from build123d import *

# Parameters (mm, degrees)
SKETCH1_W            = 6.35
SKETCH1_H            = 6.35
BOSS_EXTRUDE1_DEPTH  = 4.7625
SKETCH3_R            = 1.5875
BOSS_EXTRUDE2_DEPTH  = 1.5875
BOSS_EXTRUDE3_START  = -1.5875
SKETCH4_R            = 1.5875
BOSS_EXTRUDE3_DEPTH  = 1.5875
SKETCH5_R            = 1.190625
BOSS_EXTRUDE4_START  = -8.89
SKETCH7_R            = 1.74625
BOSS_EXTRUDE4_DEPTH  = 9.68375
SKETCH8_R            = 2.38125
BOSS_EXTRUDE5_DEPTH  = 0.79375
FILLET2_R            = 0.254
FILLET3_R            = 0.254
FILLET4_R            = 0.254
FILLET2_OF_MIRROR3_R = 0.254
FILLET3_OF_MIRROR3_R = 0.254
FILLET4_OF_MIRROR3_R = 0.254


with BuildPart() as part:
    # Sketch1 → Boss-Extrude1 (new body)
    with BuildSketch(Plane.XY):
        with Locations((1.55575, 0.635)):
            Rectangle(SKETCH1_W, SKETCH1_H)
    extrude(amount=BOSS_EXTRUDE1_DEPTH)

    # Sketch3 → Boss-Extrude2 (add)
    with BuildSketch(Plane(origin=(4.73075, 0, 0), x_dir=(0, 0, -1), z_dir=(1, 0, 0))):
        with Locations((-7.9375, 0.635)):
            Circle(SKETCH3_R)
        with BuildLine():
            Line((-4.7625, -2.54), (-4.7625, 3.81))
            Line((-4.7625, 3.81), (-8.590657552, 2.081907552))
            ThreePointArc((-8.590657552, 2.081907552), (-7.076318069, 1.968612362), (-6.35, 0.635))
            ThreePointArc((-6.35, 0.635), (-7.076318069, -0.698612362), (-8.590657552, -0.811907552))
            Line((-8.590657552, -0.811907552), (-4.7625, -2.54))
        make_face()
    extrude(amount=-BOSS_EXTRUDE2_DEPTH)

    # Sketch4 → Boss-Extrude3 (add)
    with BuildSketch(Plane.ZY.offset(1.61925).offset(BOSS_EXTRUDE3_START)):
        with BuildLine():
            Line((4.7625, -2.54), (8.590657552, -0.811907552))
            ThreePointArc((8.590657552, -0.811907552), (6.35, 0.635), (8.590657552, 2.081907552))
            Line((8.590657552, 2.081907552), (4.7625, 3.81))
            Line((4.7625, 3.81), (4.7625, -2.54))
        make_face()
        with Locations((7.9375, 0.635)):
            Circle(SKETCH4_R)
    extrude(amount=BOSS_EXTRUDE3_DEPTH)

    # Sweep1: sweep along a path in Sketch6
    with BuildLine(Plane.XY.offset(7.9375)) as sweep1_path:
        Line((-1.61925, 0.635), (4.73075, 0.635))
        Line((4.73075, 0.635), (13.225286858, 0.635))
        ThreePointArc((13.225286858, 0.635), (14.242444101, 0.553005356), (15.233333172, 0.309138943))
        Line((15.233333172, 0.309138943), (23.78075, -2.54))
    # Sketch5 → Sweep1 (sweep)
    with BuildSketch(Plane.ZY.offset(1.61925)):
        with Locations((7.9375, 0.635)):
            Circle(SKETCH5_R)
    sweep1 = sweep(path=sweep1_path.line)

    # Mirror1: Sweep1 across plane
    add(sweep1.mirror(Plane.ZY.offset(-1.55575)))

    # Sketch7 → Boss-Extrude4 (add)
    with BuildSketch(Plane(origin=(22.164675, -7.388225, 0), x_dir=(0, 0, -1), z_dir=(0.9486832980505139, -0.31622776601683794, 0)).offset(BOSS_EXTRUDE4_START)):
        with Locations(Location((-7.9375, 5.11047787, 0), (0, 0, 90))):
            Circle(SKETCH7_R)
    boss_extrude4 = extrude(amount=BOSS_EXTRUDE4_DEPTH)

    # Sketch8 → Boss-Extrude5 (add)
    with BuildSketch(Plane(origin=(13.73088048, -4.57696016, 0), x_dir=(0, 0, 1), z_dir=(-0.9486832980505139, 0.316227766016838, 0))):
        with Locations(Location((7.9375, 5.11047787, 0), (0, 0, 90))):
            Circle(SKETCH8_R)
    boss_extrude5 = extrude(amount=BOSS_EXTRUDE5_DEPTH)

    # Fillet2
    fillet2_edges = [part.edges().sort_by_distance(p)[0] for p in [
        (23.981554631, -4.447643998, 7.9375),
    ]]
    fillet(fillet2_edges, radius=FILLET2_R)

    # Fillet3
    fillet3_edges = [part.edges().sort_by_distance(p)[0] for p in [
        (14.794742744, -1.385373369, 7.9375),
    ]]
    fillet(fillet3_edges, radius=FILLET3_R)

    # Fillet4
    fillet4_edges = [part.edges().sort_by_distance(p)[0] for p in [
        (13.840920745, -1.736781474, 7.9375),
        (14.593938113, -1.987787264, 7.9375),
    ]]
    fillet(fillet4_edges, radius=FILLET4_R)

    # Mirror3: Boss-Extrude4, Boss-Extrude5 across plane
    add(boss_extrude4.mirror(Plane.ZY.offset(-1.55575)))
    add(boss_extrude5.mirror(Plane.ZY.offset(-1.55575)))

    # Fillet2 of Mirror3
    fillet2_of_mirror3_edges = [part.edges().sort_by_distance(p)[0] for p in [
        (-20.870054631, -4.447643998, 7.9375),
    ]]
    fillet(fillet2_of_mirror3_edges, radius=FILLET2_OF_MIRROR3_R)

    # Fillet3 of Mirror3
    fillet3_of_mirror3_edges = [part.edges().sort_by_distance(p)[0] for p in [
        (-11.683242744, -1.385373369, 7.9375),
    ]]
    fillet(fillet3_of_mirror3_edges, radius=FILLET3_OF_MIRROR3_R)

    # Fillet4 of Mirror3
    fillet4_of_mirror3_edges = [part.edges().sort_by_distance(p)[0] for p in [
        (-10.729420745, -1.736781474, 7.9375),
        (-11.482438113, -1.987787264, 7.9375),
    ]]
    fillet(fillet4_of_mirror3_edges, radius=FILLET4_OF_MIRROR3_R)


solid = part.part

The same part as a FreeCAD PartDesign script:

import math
import FreeCAD as App
import Part
import Sketcher
Q = App.Units.Quantity


def edges_at(feature, points):
    """Names of the edges that pass closest to the given points."""
    edges = feature.Shape.Edges
    near = lambda p: min(range(len(edges)), key=lambda i: edges[i].distToShape(Part.Vertex(*p))[0])
    return sorted({f"Edge{near(p) + 1}" for p in points})

doc = App.newDocument("Part")
params = doc.addObject("Spreadsheet::Sheet", "Params")
for row, (alias, value) in enumerate([
    ("sketch1_width", "0.25 in"),
    ("pad1_length", "0.1875 in"),
    ("sketch2_radius", "0.0625 in"),
    ("sketch2_width", "0.25 in"),
    ("pad2_length", "0.0625 in"),
    ("sketch3_radius", "0.0625 in"),
    ("sketch3_width", "0.25 in"),
    ("pad3_length", "0.0625 in"),
    ("sketch4_diameter", "0.09375 in"),
    ("sketch5_radius", "0.25 in"),
    ("pad4_length", "9.68375 mm"),
    ("sketch7_diameter", "0.1875 in"),
    ("pad5_length", "0.03125 in"),
    ("fillet_radius", "0.01 in"),
    ("fillet2_radius", "0.01 in"),
    ("fillet3_radius", "0.01 in"),
    ("fillet4_radius", "0.01 in"),
    ("fillet5_radius", "0.01 in"),
    ("fillet6_radius", "0.01 in"),
], start=1):
    params.set(f"A{row}", alias)
    params.set(f"B{row}", "=" + value)
    params.setAlias(f"B{row}", alias)

body = doc.addObject("PartDesign::Body", "Body")

# Sketch on XY plane
sketch1 = doc.addObject("Sketcher::SketchObject", "Sketch")
body.addObject(sketch1)
sketch1.AttachmentSupport = (doc.XY_Plane, [""])
sketch1.MapMode = "FlatFace"
sketch1.addGeometry([
    Part.LineSegment(App.Vector(-1.61925, 3.81, 0), App.Vector(-1.61925, -2.54, 0)),
    Part.LineSegment(App.Vector(-1.61925, -2.54, 0), App.Vector(4.73075, -2.54, 0)),
    Part.LineSegment(App.Vector(4.73075, -2.54, 0), App.Vector(4.73075, 3.81, 0)),
    Part.LineSegment(App.Vector(4.73075, 3.81, 0), App.Vector(-1.61925, 3.81, 0)),
], False)
sketch1.addConstraint([
    Sketcher.Constraint("Coincident", 0, 2, 1, 1),
    Sketcher.Constraint("Coincident", 1, 2, 2, 1),
    Sketcher.Constraint("Coincident", 2, 2, 3, 1),
    Sketcher.Constraint("Coincident", 3, 2, 0, 1),
    Sketcher.Constraint("Vertical", 0),
    Sketcher.Constraint("Horizontal", 1),
    Sketcher.Constraint("Vertical", 2),
    Sketcher.Constraint("Horizontal", 3),
    Sketcher.Constraint("Equal", 3, 0),
    Sketcher.Constraint("DistanceX", 1, 1, 1, 2, Q("0.25 in")),
    Sketcher.Constraint("DistanceY", 0, 2, -1, 1, Q("0.1 in")),
    Sketcher.Constraint("DistanceX", 0, 2, -1, 1, Q("1.61925 mm")),
])
sketch1.setExpression("Constraints[9]", "Params.sketch1_width")
pad1 = doc.addObject("PartDesign::Pad", "Pad")
body.addObject(pad1)
pad1.Profile = sketch1
pad1.setExpression("Length", "Params.pad1_length")

# Sketch on YZ plane
sketch2 = doc.addObject("Sketcher::SketchObject", "Sketch001")
body.addObject(sketch2)
sketch2.AttachmentSupport = (doc.YZ_Plane, [""])
sketch2.MapMode = "FlatFace"
sketch2.AttachmentOffset = App.Placement(App.Vector(0, 0, 4.73075), App.Rotation())
sketch2.addGeometry([
    Part.ArcOfCircle(Part.Circle(App.Vector(0.635, 7.9375, 0), App.Vector(0, 0, 1), 1.5875), math.radians(24.295189), math.radians(155.704811)),
    Part.LineSegment(App.Vector(-0.811908, 8.590658, 0), App.Vector(-2.54, 4.7625, 0)),
    Part.LineSegment(App.Vector(-2.54, 4.7625, 0), App.Vector(3.81, 4.7625, 0)),
    Part.LineSegment(App.Vector(3.81, 4.7625, 0), App.Vector(2.081908, 8.590658, 0)),
], False)
sketch2.addConstraint([
    Sketcher.Constraint("Tangent", 0, 2, 1, 1),
    Sketcher.Constraint("Coincident", 1, 2, 2, 1),
    Sketcher.Constraint("Coincident", 2, 2, 3, 1),
    Sketcher.Constraint("Tangent", 3, 2, 0, 1),
    Sketcher.Constraint("Horizontal", 2),
    Sketcher.Constraint("Horizontal", 0, 2, 3, 2),
    Sketcher.Constraint("Radius", 0, Q("0.0625 in")),
    Sketcher.Constraint("DistanceX", 2, 1, 2, 2, Q("0.25 in")),
    Sketcher.Constraint("DistanceX", 1, 2, -1, 1, Q("0.1 in")),
    Sketcher.Constraint("DistanceY", -1, 1, 0, 3, Q("0.3125 in")),
    Sketcher.Constraint("DistanceY", -1, 1, 1, 2, Q("0.1875 in")),
])
sketch2.setExpression("Constraints[6]", "Params.sketch2_radius")
sketch2.setExpression("Constraints[7]", "Params.sketch2_width")
pad2 = doc.addObject("PartDesign::Pad", "Pad001")
body.addObject(pad2)
pad2.Profile = sketch2
pad2.setExpression("Length", "Params.pad2_length")
pad2.Reversed = True

# Sketch on YZ plane
sketch3 = doc.addObject("Sketcher::SketchObject", "Sketch002")
body.addObject(sketch3)
sketch3.AttachmentSupport = (doc.YZ_Plane, [""])
sketch3.MapMode = "FlatFace"
sketch3.AttachmentOffset = App.Placement(App.Vector(0, 0, -0.03175), App.Rotation())
sketch3.addGeometry([
    Part.LineSegment(App.Vector(-2.54, 4.7625, 0), App.Vector(-0.811908, 8.590658, 0)),
    Part.ArcOfCircle(Part.Circle(App.Vector(0.635, 7.9375, 0), App.Vector(0, 0, 1), 1.5875), math.radians(24.295189), math.radians(155.704811)),
    Part.LineSegment(App.Vector(2.081908, 8.590658, 0), App.Vector(3.81, 4.7625, 0)),
    Part.LineSegment(App.Vector(3.81, 4.7625, 0), App.Vector(-2.54, 4.7625, 0)),
], False)
sketch3.addConstraint([
    Sketcher.Constraint("Tangent", 0, 2, 1, 2),
    Sketcher.Constraint("Tangent", 1, 1, 2, 1),
    Sketcher.Constraint("Coincident", 2, 2, 3, 1),
    Sketcher.Constraint("Coincident", 3, 2, 0, 1),
    Sketcher.Constraint("Horizontal", 3),
    Sketcher.Constraint("Horizontal", 0, 2, 1, 1),
    Sketcher.Constraint("Radius", 1, Q("0.0625 in")),
    Sketcher.Constraint("DistanceX", 3, 2, 3, 1, Q("0.25 in")),
    Sketcher.Constraint("DistanceX", 3, 2, -1, 1, Q("0.1 in")),
    Sketcher.Constraint("DistanceY", -1, 1, 1, 3, Q("0.3125 in")),
    Sketcher.Constraint("DistanceY", -1, 1, 2, 2, Q("0.1875 in")),
])
sketch3.setExpression("Constraints[6]", "Params.sketch3_radius")
sketch3.setExpression("Constraints[7]", "Params.sketch3_width")
pad3 = doc.addObject("PartDesign::Pad", "Pad002")
body.addObject(pad3)
pad3.Profile = sketch3
pad3.setExpression("Length", "Params.pad3_length")
pad3.Reversed = True

# Sketch on YZ plane
sketch4 = doc.addObject("Sketcher::SketchObject", "Sketch003")
body.addObject(sketch4)
sketch4.AttachmentSupport = (doc.YZ_Plane, [""])
sketch4.MapMode = "FlatFace"
sketch4.AttachmentOffset = App.Placement(App.Vector(0, 0, -1.61925), App.Rotation())
sketch4.addGeometry(Part.Circle(App.Vector(0.635, 7.9375, 0), App.Vector(0, 0, 1), 1.190625), False)
sketch4.addConstraint([
    Sketcher.Constraint("Diameter", 0, Q("0.09375 in")),
    Sketcher.Constraint("DistanceX", -1, 1, 0, 3, Q("0.025 in")),
    Sketcher.Constraint("DistanceY", -1, 1, 0, 3, Q("0.3125 in")),
])
sketch4.setExpression("Constraints[0]", "Params.sketch4_diameter")

# Sketch on XY plane
sketch5 = doc.addObject("Sketcher::SketchObject", "Sketch004")
body.addObject(sketch5)
sketch5.AttachmentSupport = (doc.XY_Plane, [""])
sketch5.MapMode = "FlatFace"
sketch5.AttachmentOffset = App.Placement(App.Vector(0, 0, 0.3125 * 25.4), App.Rotation())
sketch5.addGeometry([
    Part.LineSegment(App.Vector(-1.61925, 0.635, 0), App.Vector(13.225287, 0.635, 0)),
    Part.ArcOfCircle(Part.Circle(App.Vector(13.225287, -5.715, 0), App.Vector(0, 0, 1), 6.35), math.radians(71.565051), math.radians(90)),
    Part.LineSegment(App.Vector(15.233333, 0.309139, 0), App.Vector(23.78075, -2.54, 0)),
], False)
sketch5.addConstraint([
    Sketcher.Constraint("Tangent", 0, 2, 1, 2),
    Sketcher.Constraint("Tangent", 1, 1, 2, 1),
    Sketcher.Constraint("Horizontal", 0),
    Sketcher.Constraint("Radius", 1, Q("0.25 in")),
    Sketcher.Constraint("DistanceX", 0, 1, 2, 2, Q("1 in")),
    Sketcher.Constraint("DistanceY", 2, 2, -1, 1, Q("0.1 in")),
    Sketcher.Constraint("DistanceY", 1, 3, -1, 1, Q("0.225 in")),
    Sketcher.Constraint("Distance", 2, Q("9.009768 mm")),
    Sketcher.Constraint("DistanceX", 0, 1, -1, 1, Q("1.61925 mm")),
])
sketch5.setExpression("Constraints[3]", "Params.sketch5_radius")
doc.recompute()

additivepipe = doc.addObject("PartDesign::AdditivePipe", "AdditivePipe")
body.addObject(additivepipe)
additivepipe.Profile = sketch4
additivepipe.Spine = (sketch5, ["Edge1", "Edge2", "Edge3"])
doc.recompute()

datumplane = doc.addObject("PartDesign::Plane", "DatumPlane")
body.addObject(datumplane)
datumplane.AttachmentSupport = (doc.YZ_Plane, [""])
datumplane.MapMode = "FlatFace"
datumplane.AttachmentOffset = App.Placement(App.Vector(0, 0, 1.55575), App.Rotation())
mirrored = doc.addObject("PartDesign::Mirrored", "Mirrored")
body.addObject(mirrored)
mirrored.Originals = [additivepipe]
mirrored.MirrorPlane = (datumplane, [""])
body.Tip = mirrored

# Sketch on an angled plane
sketch6 = doc.addObject("Sketcher::SketchObject", "Sketch005")
body.addObject(sketch6)
sketch6.Placement = App.Placement(App.Vector(13.73088, -4.57696, 0), App.Rotation(App.Vector(0, 0, -1), App.Vector(0.316227766, 0.948683298, 0), App.Vector(0.948683298, -0.316227766, 0), "ZXY"))
sketch6.addGeometry(Part.Circle(App.Vector(-7.9375, 5.110478, 0), App.Vector(0, 0, 1), 1.74625), False)
sketch6.addConstraint([
    Sketcher.Constraint("Diameter", 0, Q("0.1375 in")),
    Sketcher.Constraint("DistanceX", 0, 3, -1, 1, Q("0.3125 in")),
    Sketcher.Constraint("DistanceY", -1, 1, 0, 3, Q("0.2011999 in")),
])
pad4 = doc.addObject("PartDesign::Pad", "Pad003")
body.addObject(pad4)
pad4.Profile = sketch6
pad4.setExpression("Length", "Params.pad4_length")

# Sketch on an angled plane
sketch7 = doc.addObject("Sketcher::SketchObject", "Sketch006")
body.addObject(sketch7)
sketch7.Placement = App.Placement(App.Vector(13.73088, -4.57696, 0), App.Rotation(App.Vector(0, 0, 1), App.Vector(0.316227766, 0.948683298, 0), App.Vector(-0.948683298, 0.316227766, 0), "ZXY"))
sketch7.addGeometry(Part.Circle(App.Vector(7.9375, 5.110478, 0), App.Vector(0, 0, 1), 2.38125), False)
sketch7.addConstraint([
    Sketcher.Constraint("Diameter", 0, Q("0.1875 in")),
    Sketcher.Constraint("DistanceX", -1, 1, 0, 3, Q("0.3125 in")),
    Sketcher.Constraint("DistanceY", -1, 1, 0, 3, Q("0.2011999 in")),
])
sketch7.setExpression("Constraints[0]", "Params.sketch7_diameter")
pad5 = doc.addObject("PartDesign::Pad", "Pad004")
body.addObject(pad5)
pad5.Profile = sketch7
pad5.setExpression("Length", "Params.pad5_length")
doc.recompute()

fillet = doc.addObject("PartDesign::Fillet", "Fillet")
body.addObject(fillet)
fillet.Base = (pad5, edges_at(pad5, [(23.982, -4.448, 7.938)]))
fillet.setExpression("Radius", "Params.fillet_radius")
doc.recompute()

fillet2 = doc.addObject("PartDesign::Fillet", "Fillet001")
body.addObject(fillet2)
fillet2.Base = (fillet, edges_at(fillet, [(14.795, -1.385, 7.938)]))
fillet2.setExpression("Radius", "Params.fillet2_radius")
doc.recompute()

fillet3 = doc.addObject("PartDesign::Fillet", "Fillet002")
body.addObject(fillet3)
fillet3.Base = (fillet2, edges_at(fillet2, [(13.841, -1.737, 7.938), (14.594, -1.988, 7.938)]))
fillet3.setExpression("Radius", "Params.fillet3_radius")
doc.recompute()

datumplane2 = doc.addObject("PartDesign::Plane", "DatumPlane001")
body.addObject(datumplane2)
datumplane2.AttachmentSupport = (doc.YZ_Plane, [""])
datumplane2.MapMode = "FlatFace"
datumplane2.AttachmentOffset = App.Placement(App.Vector(0, 0, 1.55575), App.Rotation())
mirrored2 = doc.addObject("PartDesign::Mirrored", "Mirrored001")
body.addObject(mirrored2)
mirrored2.Originals = [pad4, pad5]
mirrored2.MirrorPlane = (datumplane2, [""])
body.Tip = mirrored2
doc.recompute()

fillet4 = doc.addObject("PartDesign::Fillet", "Fillet003")
body.addObject(fillet4)
fillet4.Base = (mirrored2, edges_at(mirrored2, [(-20.87, -4.448, 7.938)]))
fillet4.setExpression("Radius", "Params.fillet4_radius")
doc.recompute()

fillet5 = doc.addObject("PartDesign::Fillet", "Fillet004")
body.addObject(fillet5)
fillet5.Base = (fillet4, edges_at(fillet4, [(-11.683, -1.385, 7.938)]))
fillet5.setExpression("Radius", "Params.fillet5_radius")
doc.recompute()

fillet6 = doc.addObject("PartDesign::Fillet", "Fillet005")
body.addObject(fillet6)
fillet6.Base = (fillet5, edges_at(fillet5, [(-10.729, -1.737, 7.938), (-11.482, -1.988, 7.938)]))
fillet6.setExpression("Radius", "Params.fillet6_radius")

doc.recompute()
